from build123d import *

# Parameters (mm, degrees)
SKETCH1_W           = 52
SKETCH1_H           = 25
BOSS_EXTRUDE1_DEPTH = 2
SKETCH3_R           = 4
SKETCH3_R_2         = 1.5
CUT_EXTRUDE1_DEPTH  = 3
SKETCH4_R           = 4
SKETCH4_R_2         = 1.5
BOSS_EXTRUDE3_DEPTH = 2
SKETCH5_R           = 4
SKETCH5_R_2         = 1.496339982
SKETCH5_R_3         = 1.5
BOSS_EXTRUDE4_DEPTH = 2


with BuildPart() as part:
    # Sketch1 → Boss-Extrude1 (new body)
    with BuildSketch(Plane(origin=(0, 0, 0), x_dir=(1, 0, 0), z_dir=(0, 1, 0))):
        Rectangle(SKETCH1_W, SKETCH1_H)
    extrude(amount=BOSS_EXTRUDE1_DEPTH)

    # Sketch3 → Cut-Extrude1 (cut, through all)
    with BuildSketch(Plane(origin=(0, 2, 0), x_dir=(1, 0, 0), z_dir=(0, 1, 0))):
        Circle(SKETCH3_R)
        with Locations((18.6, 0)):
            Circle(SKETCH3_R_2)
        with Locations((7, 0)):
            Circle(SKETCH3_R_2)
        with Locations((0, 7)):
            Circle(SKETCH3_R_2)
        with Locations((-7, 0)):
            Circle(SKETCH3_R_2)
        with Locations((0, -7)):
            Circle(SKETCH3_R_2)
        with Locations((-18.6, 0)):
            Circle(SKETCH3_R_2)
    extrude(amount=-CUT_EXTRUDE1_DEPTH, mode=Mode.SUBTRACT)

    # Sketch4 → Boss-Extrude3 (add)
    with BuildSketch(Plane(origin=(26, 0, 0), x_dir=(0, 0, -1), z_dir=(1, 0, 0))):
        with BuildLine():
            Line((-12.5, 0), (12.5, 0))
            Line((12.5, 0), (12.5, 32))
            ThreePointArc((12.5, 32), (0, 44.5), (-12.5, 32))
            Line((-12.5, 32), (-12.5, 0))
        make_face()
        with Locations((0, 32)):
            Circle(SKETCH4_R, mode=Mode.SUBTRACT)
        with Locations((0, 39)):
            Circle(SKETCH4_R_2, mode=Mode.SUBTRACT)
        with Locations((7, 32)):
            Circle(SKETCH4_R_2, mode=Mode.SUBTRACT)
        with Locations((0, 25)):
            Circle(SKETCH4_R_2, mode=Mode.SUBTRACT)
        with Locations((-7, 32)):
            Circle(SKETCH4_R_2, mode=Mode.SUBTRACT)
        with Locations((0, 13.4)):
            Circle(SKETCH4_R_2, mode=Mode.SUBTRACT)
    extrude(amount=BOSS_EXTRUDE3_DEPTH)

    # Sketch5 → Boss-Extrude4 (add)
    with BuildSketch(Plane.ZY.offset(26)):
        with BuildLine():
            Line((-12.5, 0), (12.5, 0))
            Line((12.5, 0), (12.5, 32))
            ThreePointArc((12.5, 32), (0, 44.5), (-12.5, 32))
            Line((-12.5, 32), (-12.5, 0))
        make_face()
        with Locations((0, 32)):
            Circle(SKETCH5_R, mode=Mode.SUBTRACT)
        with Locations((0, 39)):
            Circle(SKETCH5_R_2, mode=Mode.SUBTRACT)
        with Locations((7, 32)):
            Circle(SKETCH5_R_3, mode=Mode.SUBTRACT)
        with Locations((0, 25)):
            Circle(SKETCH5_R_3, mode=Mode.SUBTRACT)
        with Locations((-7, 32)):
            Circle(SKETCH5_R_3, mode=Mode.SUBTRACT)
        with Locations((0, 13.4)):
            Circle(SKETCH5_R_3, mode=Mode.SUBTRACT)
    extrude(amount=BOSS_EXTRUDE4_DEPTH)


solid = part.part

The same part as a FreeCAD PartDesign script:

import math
import FreeCAD as App
import Part
import Sketcher

V = App.Vector
Q = App.Units.Quantity

doc = App.newDocument("Part")
body = doc.addObject("PartDesign::Body", "Body")

sketch1 = body.newObject("Sketcher::SketchObject", "Sketch")
sketch1.AttachmentSupport = (doc.getObject("XZ_Plane"), [""])
sketch1.MapMode = "FlatFace"
sketch1.addGeometry([
    Part.LineSegment(V(-26, -12, 0), V(-26, 12, 0)),
    Part.LineSegment(V(-26, 12, 0), V(26, 12, 0)),
    Part.LineSegment(V(26, 12, 0), V(26, -12, 0)),
    Part.LineSegment(V(26, -12, 0), V(-26, -12, 0)),
], False)
sketch1.addConstraint([
    Sketcher.Constraint("Coincident", 0, 2, 1, 1),
    Sketcher.Constraint("Coincident", 1, 2, 2, 1),
    Sketcher.Constraint("Coincident", 2, 2, 3, 1),
    Sketcher.Constraint("Coincident", 3, 2, 0, 1),
    Sketcher.Constraint("Vertical", 0),
    Sketcher.Constraint("Horizontal", 1),
    Sketcher.Constraint("Vertical", 2),
    Sketcher.Constraint("Horizontal", 3),
    Sketcher.Constraint("Symmetric", 0, 2, 2, 2, -1, 1),
    Sketcher.Constraint("DistanceX", 1, 1, 1, 2, Q("52 mm")),
    Sketcher.Constraint("DistanceY", 0, 1, 0, 2, Q("25 mm")),
])
pad1 = body.newObject("PartDesign::Pad", "Pad")
pad1.Profile = sketch1
pad1.Length = 2
pad1.Reversed = True

sketch2 = body.newObject("Sketcher::SketchObject", "Sketch001")
sketch2.AttachmentSupport = (doc.getObject("XZ_Plane"), [""])
sketch2.MapMode = "FlatFace"
sketch2.AttachmentOffset = App.Placement(V(0, 0, -2), App.Rotation())
sketch2.addGeometry([
    Part.Circle(V(0, 0, 0), V(0, 0, 1), 4),
    Part.Circle(V(18.6, 0, 0), V(0, 0, 1), 1.5),
    Part.Circle(V(7, 0, 0), V(0, 0, 1), 1.5),
    Part.Circle(V(0, -7, 0), V(0, 0, 1), 1.5),
    Part.Circle(V(-7, 0, 0), V(0, 0, 1), 1.5),
    Part.Circle(V(0, 7, 0), V(0, 0, 1), 1.5),
    Part.Circle(V(-18.6, 0, 0), V(0, 0, 1), 1.5),
], False)
sketch2.addConstraint([
    Sketcher.Constraint("Coincident", 0, 3, -1, 1),
    Sketcher.Constraint("Equal", 1, 2),
    Sketcher.Constraint("Equal", 2, 3),
    Sketcher.Constraint("Equal", 3, 4),
    Sketcher.Constraint("Equal", 4, 5),
    Sketcher.Constraint("Equal", 5, 6),
    Sketcher.Constraint("Symmetric", 2, 3, 4, 3, -1, 1),
    Sketcher.Constraint("Symmetric", 3, 3, 5, 3, -1, 1),
    Sketcher.Constraint("Symmetric", 1, 3, 6, 3, -1, 1),
    Sketcher.Constraint("PointOnObject", 1, 3, -1),
    Sketcher.Constraint("PointOnObject", 2, 3, -1),
    Sketcher.Constraint("PointOnObject", 3, 3, -2),
    Sketcher.Constraint("Diameter", 0, Q("8 mm")),
    Sketcher.Constraint("Diameter", 1, Q("3 mm")),
    Sketcher.Constraint("DistanceX", -1, 1, 2, 3, Q("7 mm")),
    Sketcher.Constraint("DistanceY", 3, 3, -1, 1, Q("7 mm")),
    Sketcher.Constraint("DistanceX", -1, 1, 1, 3, Q("18.6 mm")),
])
pocket1 = body.newObject("PartDesign::Pocket", "Pocket")
pocket1.Profile = sketch2
pocket1.Type = "ThroughAll"
pocket1.Reversed = True

sketch3 = body.newObject("Sketcher::SketchObject", "Sketch002")
sketch3.AttachmentSupport = (doc.getObject("YZ_Plane"), [""])
sketch3.MapMode = "FlatFace"
sketch3.AttachmentOffset = App.Placement(V(0, 0, 26), App.Rotation())
sketch3.addGeometry([
    Part.LineSegment(V(0, 12.5, 0), V(0, -12.5, 0)),
    Part.LineSegment(V(0, -12.5, 0), V(32, -12.5, 0)),
    Part.ArcOfCircle(Part.Circle(V(32, 0, 0), V(0, 0, 1), 12.5), math.radians(-90), math.radians(90)),
    Part.LineSegment(V(32, 12.5, 0), V(0, 12.5, 0)),
    Part.Circle(V(13.4, 0, 0), V(0, 0, 1), 1.5),
    Part.Circle(V(25, 0, 0), V(0, 0, 1), 1.5),
    Part.Circle(V(32, 7, 0), V(0, 0, 1), 1.5),
    Part.Circle(V(32, 0, 0), V(0, 0, 1), 4),
    Part.Circle(V(32, -7, 0), V(0, 0, 1), 1.5),
    Part.Circle(V(39, 0, 0), V(0, 0, 1), 1.5),
], False)
sketch3.addConstraint([
    Sketcher.Constraint("Coincident", 0, 2, 1, 1),
    Sketcher.Constraint("Tangent", 1, 2, 2, 1),
    Sketcher.Constraint("Tangent", 2, 2, 3, 1),
    Sketcher.Constraint("Coincident", 3, 2, 0, 1),
    Sketcher.Constraint("Vertical", 0),
    Sketcher.Constraint("Horizontal", 1),
    Sketcher.Constraint("Horizontal", 3),
    Sketcher.Constraint("Coincident", 7, 3, 2, 3),
    Sketcher.Constraint("Equal", 4, 5),
    Sketcher.Constraint("Equal", 5, 6),
    Sketcher.Constraint("Equal", 6, 8),
    Sketcher.Constraint("Equal", 8, 9),
    Sketcher.Constraint("Symmetric", 0, 2, 3, 2, -1, 1),
    Sketcher.Constraint("Symmetric", 6, 3, 8, 3, -1),
    Sketcher.Constraint("PointOnObject", 4, 3, -1),
    Sketcher.Constraint("PointOnObject", 5, 3, -1),
    Sketcher.Constraint("PointOnObject", 9, 3, -1),
    Sketcher.Constraint("Vertical", 2, 3, 6, 3),
    Sketcher.Constraint("Diameter", 4, Q("3 mm")),
    Sketcher.Constraint("Diameter", 7, Q("8 mm")),
    Sketcher.Constraint("Radius", 2, Q("12.5 mm")),
    Sketcher.Constraint("DistanceX", 1, 1, 1, 2, Q("32 mm")),
    Sketcher.Constraint("DistanceX", -1, 1, 5, 3, Q("25 mm")),
    Sketcher.Constraint("DistanceY", -1, 1, 6, 3, Q("7 mm")),
    Sketcher.Constraint("DistanceX", -1, 1, 9, 3, Q("39 mm")),
    Sketcher.Constraint("DistanceX", -1, 1, 4, 3, Q("13.4 mm")),
])
pad2 = body.newObject("PartDesign::Pad", "Pad001")
pad2.Profile = sketch3
pad2.Length = 2

sketch4 = body.newObject("Sketcher::SketchObject", "Sketch003")
sketch4.AttachmentSupport = (doc.getObject("YZ_Plane"), [""])
sketch4.MapMode = "FlatFace"
sketch4.AttachmentOffset = App.Placement(V(0, 0, -26), App.Rotation())
sketch4.addGeometry([
    Part.LineSegment(V(0, -12.5, 0), V(0, 12.5, 0)),
    Part.LineSegment(V(0, 12.5, 0), V(32, 12.5, 0)),
    Part.ArcOfCircle(Part.Circle(V(32, 0, 0), V(0, 0, 1), 12.5), math.radians(-90), math.radians(90)),
    Part.LineSegment(V(32, -12.5, 0), V(0, -12.5, 0)),
    Part.Circle(V(13.4, 0, 0), V(0, 0, 1), 1.5),
    Part.Circle(V(25, 0, 0), V(0, 0, 1), 1.5),
    Part.Circle(V(32, -7, 0), V(0, 0, 1), 1.5),
    Part.Circle(V(32, 0, 0), V(0, 0, 1), 4),
    Part.Circle(V(32, 7, 0), V(0, 0, 1), 1.5),
    Part.Circle(V(39, 0, 0), V(0, 0, 1), 1.5),
], False)
sketch4.addConstraint([
    Sketcher.Constraint("Coincident", 0, 2, 1, 1),
    Sketcher.Constraint("Tangent", 1, 2, 2, 2),
    Sketcher.Constraint("Tangent", 2, 1, 3, 1),
    Sketcher.Constraint("Coincident", 3, 2, 0, 1),
    Sketcher.Constraint("Vertical", 0),
    Sketcher.Constraint("Horizontal", 1),
    Sketcher.Constraint("Horizontal", 3),
    Sketcher.Constraint("Coincident", 7, 3, 2, 3),
    Sketcher.Constraint("Equal", 4, 5),
    Sketcher.Constraint("Equal", 5, 6),
    Sketcher.Constraint("Equal", 6, 8),
    Sketcher.Constraint("Symmetric", 0, 2, 3, 2, -1, 1),
    Sketcher.Constraint("Symmetric", 6, 3, 8, 3, -1),
    Sketcher.Constraint("PointOnObject", 4, 3, -1),
    Sketcher.Constraint("PointOnObject", 5, 3, -1),
    Sketcher.Constraint("PointOnObject", 9, 3, -1),
    Sketcher.Constraint("Vertical", 2, 3, 6, 3),
    Sketcher.Constraint("Diameter", 4, Q("3 mm")),
    Sketcher.Constraint("Diameter", 7, Q("8 mm")),
    Sketcher.Constraint("Radius", 2, Q("12.5 mm")),
    Sketcher.Constraint("DistanceX", 1, 1, 1, 2, Q("32 mm")),
    Sketcher.Constraint("DistanceX", -1, 1, 5, 3, Q("25 mm")),
    Sketcher.Constraint("DistanceY", 6, 3, -1, 1, Q("7 mm")),
    Sketcher.Constraint("DistanceX", -1, 1, 9, 3, Q("39 mm")),
    Sketcher.Constraint("DistanceX", -1, 1, 4, 3, Q("13.4 mm")),
    Sketcher.Constraint("Diameter", 9, Q("2.99268 mm")),
])
pad3 = body.newObject("PartDesign::Pad", "Pad002")
pad3.Profile = sketch4
pad3.Length = 2
pad3.Reversed = True

doc.recompute()
